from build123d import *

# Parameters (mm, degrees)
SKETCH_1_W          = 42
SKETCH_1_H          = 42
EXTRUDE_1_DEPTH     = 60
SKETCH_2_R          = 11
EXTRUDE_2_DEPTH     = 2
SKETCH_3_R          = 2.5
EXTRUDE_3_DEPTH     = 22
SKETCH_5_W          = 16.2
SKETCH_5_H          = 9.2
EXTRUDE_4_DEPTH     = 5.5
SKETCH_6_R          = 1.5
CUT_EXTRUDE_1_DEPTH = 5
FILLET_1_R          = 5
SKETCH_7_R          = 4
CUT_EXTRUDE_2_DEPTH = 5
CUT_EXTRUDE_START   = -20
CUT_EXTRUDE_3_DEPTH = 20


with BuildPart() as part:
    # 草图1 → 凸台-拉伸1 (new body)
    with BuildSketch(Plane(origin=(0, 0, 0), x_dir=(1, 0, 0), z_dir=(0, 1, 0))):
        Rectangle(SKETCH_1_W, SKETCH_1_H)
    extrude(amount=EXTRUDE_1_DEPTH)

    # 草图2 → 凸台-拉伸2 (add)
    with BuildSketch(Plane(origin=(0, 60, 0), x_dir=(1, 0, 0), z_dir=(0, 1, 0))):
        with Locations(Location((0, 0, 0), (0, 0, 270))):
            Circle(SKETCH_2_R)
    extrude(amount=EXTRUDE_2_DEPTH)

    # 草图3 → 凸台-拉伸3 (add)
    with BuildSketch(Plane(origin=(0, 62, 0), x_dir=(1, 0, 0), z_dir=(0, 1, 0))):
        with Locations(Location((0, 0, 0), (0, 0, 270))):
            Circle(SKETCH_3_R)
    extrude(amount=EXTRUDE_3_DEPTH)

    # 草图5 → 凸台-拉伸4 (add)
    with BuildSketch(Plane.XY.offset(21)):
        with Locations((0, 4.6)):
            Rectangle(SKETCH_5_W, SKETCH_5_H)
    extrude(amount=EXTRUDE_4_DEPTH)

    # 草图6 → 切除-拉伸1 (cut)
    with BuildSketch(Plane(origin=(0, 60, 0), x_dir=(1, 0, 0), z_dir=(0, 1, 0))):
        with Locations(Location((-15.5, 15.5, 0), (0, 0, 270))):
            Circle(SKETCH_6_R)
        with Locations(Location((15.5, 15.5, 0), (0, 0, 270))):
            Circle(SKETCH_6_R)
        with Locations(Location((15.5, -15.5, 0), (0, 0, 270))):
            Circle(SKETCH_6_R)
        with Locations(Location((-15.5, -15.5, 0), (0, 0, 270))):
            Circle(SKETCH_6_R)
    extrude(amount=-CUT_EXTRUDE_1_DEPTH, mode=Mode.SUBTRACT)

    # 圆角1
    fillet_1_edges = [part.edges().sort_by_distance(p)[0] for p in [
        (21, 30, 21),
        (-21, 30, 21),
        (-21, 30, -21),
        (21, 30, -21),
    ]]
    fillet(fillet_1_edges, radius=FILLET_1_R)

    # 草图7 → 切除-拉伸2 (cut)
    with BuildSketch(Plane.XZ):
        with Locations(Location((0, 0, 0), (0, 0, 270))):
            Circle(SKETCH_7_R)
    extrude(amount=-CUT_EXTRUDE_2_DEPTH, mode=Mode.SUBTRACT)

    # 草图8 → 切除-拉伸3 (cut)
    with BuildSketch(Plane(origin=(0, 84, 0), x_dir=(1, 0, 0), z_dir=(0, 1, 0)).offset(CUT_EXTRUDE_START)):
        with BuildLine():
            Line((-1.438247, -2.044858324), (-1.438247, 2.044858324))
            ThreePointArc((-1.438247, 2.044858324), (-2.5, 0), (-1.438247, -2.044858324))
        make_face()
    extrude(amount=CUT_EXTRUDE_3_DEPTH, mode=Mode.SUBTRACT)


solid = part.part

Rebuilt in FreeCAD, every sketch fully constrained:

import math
import FreeCAD as App
import Part
import Sketcher
Q = App.Units.Quantity


def edges_at(feature, points):
    """Names of the edges that pass closest to the given points."""
    edges = feature.Shape.Edges
    near = lambda p: min(range(len(edges)), key=lambda i: edges[i].distToShape(Part.Vertex(*p))[0])
    return sorted({f"Edge{near(p) + 1}" for p in points})

doc = App.newDocument("Part")
params = doc.addObject("Spreadsheet::Sheet", "Params")
for row, (alias, value) in enumerate([
    ("sketch1_width", "42 mm"),
    ("pad1_length", "60 mm"),
    ("sketch2_diameter", "22 mm"),
    ("pad2_length", "2 mm"),
    ("sketch3_diameter", "5 mm"),
    ("pad3_length", "22 mm"),
    ("sketch4_width", "16.2 mm"),
    ("sketch4_height", "9.2 mm"),
    ("pad4_length", "5.5 mm"),
    ("sketch5_diameter", "3 mm"),
    ("pocket1_length", "5 mm"),
    ("fillet_radius", "5 mm"),
    ("sketch6_diameter", "8 mm"),
    ("pocket2_length", "5 mm"),
    ("sketch7_radius", "2.5 mm"),
    ("pocket3_length", "20 mm"),
], start=1):
    params.set(f"A{row}", alias)
    params.set(f"B{row}", "=" + value)
    params.setAlias(f"B{row}", alias)

body = doc.addObject("PartDesign::Body", "Body")

sketch1 = doc.addObject("Sketcher::SketchObject", "Sketch")
body.addObject(sketch1)
sketch1.AttachmentSupport = (doc.XZ_Plane, [""])
sketch1.MapMode = "FlatFace"
sketch1.addGeometry([
    Part.LineSegment(App.Vector(-21, -21, 0), App.Vector(-21, 21, 0)),
    Part.LineSegment(App.Vector(-21, 21, 0), App.Vector(21, 21, 0)),
    Part.LineSegment(App.Vector(21, 21, 0), App.Vector(21, -21, 0)),
    Part.LineSegment(App.Vector(21, -21, 0), App.Vector(-21, -21, 0)),
], False)
sketch1.addConstraint([
    Sketcher.Constraint("Coincident", 0, 2, 1, 1),
    Sketcher.Constraint("Coincident", 1, 2, 2, 1),
    Sketcher.Constraint("Coincident", 2, 2, 3, 1),
    Sketcher.Constraint("Coincident", 3, 2, 0, 1),
    Sketcher.Constraint("Vertical", 0),
    Sketcher.Constraint("Horizontal", 1),
    Sketcher.Constraint("Vertical", 2),
    Sketcher.Constraint("Horizontal", 3),
    Sketcher.Constraint("Symmetric", 0, 2, 2, 2, -1, 1),
    Sketcher.Constraint("Equal", 3, 0),
    Sketcher.Constraint("DistanceX", 1, 1, 1, 2, Q("42 mm")),
])
sketch1.setExpression("Constraints[10]", "Params.sketch1_width")
pad1 = doc.addObject("PartDesign::Pad", "Pad")
body.addObject(pad1)
pad1.Profile = sketch1
pad1.setExpression("Length", "Params.pad1_length")
pad1.Reversed = True

sketch2 = doc.addObject("Sketcher::SketchObject", "Sketch001")
body.addObject(sketch2)
sketch2.AttachmentSupport = (doc.XZ_Plane, [""])
sketch2.MapMode = "FlatFace"
sketch2.AttachmentOffset = App.Placement(App.Vector(0, 0, -60), App.Rotation())
sketch2.addGeometry(Part.Circle(App.Vector(0, 0, 0), App.Vector(0, 0, 1), 11), False)
sketch2.addConstraint([
    Sketcher.Constraint("Coincident", 0, 3, -1, 1),
    Sketcher.Constraint("Diameter", 0, Q("22 mm")),
])
sketch2.setExpression("Constraints[1]", "Params.sketch2_diameter")
pad2 = doc.addObject("PartDesign::Pad", "Pad001")
body.addObject(pad2)
pad2.Profile = sketch2
pad2.setExpression("Length", "Params.pad2_length")
pad2.Reversed = True

sketch3 = doc.addObject("Sketcher::SketchObject", "Sketch002")
body.addObject(sketch3)
sketch3.AttachmentSupport = (doc.XZ_Plane, [""])
sketch3.MapMode = "FlatFace"
sketch3.AttachmentOffset = App.Placement(App.Vector(0, 0, -62), App.Rotation())
sketch3.addGeometry(Part.Circle(App.Vector(0, 0, 0), App.Vector(0, 0, 1), 2.5), False)
sketch3.addConstraint([
    Sketcher.Constraint("Coincident", 0, 3, -1, 1),
    Sketcher.Constraint("Diameter", 0, Q("5 mm")),
])
sketch3.setExpression("Constraints[1]", "Params.sketch3_diameter")
pad3 = doc.addObject("PartDesign::Pad", "Pad002")
body.addObject(pad3)
pad3.Profile = sketch3
pad3.setExpression("Length", "Params.pad3_length")
pad3.Reversed = True

sketch4 = doc.addObject("Sketcher::SketchObject", "Sketch003")
body.addObject(sketch4)
sketch4.AttachmentSupport = (doc.XY_Plane, [""])
sketch4.MapMode = "FlatFace"
sketch4.AttachmentOffset = App.Placement(App.Vector(0, 0, 21), App.Rotation())
sketch4.addGeometry([
    Part.LineSegment(App.Vector(-8, 9, 0), App.Vector(-8, 0, 0)),
    Part.LineSegment(App.Vector(-8, 0, 0), App.Vector(8, 0, 0)),
    Part.LineSegment(App.Vector(8, 0, 0), App.Vector(8, 9, 0)),
    Part.LineSegment(App.Vector(8, 9, 0), App.Vector(-8, 9, 0)),
], False)
sketch4.addConstraint([
    Sketcher.Constraint("Coincident", 0, 2, 1, 1),
    Sketcher.Constraint("Coincident", 1, 2, 2, 1),
    Sketcher.Constraint("Coincident", 2, 2, 3, 1),
    Sketcher.Constraint("Coincident", 3, 2, 0, 1),
    Sketcher.Constraint("Vertical", 0),
    Sketcher.Constraint("Horizontal", 1),
    Sketcher.Constraint("Vertical", 2),
    Sketcher.Constraint("Horizontal", 3),
    Sketcher.Constraint("Symmetric", 0, 2, 1, 2, -1, 1),
    Sketcher.Constraint("DistanceX", 1, 1, 1, 2, Q("16.2 mm")),
    Sketcher.Constraint("DistanceY", 0, 2, 0, 1, Q("9.2 mm")),
])
sketch4.setExpression("Constraints[9]", "Params.sketch4_width")
sketch4.setExpression("Constraints[10]", "Params.sketch4_height")
pad4 = doc.addObject("PartDesign::Pad", "Pad003")
body.addObject(pad4)
pad4.Profile = sketch4
pad4.setExpression("Length", "Params.pad4_length")

sketch5 = doc.addObject("Sketcher::SketchObject", "Sketch004")
body.addObject(sketch5)
sketch5.AttachmentSupport = (doc.XZ_Plane, [""])
sketch5.MapMode = "FlatFace"
sketch5.AttachmentOffset = App.Placement(App.Vector(0, 0, -60), App.Rotation())
sketch5.addGeometry([
    Part.Circle(App.Vector(-15.5, -15.5, 0), App.Vector(0, 0, 1), 1.5),
    Part.Circle(App.Vector(15.5, -15.5, 0), App.Vector(0, 0, 1), 1.5),
    Part.Circle(App.Vector(15.5, 15.5, 0), App.Vector(0, 0, 1), 1.5),
    Part.Circle(App.Vector(-15.5, 15.5, 0), App.Vector(0, 0, 1), 1.5),
], False)
sketch5.addConstraint([
    Sketcher.Constraint("Equal", 0, 1),
    Sketcher.Constraint("Equal", 1, 2),
    Sketcher.Constraint("Equal", 2, 3),
    Sketcher.Constraint("Symmetric", 0, 3, 2, 3, -1, 1),
    Sketcher.Constraint("Symmetric", 1, 3, 3, 3, -1, 1),
    Sketcher.Constraint("Symmetric", 0, 3, 1, 3, -2),
    Sketcher.Constraint("Diameter", 0, Q("3 mm")),
    Sketcher.Constraint("DistanceX", 0, 3, 1, 3, Q("31 mm")),
    Sketcher.Constraint("DistanceY", 1, 3, 2, 3, Q("31 mm")),
])
sketch5.setExpression("Constraints[6]", "Params.sketch5_diameter")
pocket1 = doc.addObject("PartDesign::Pocket", "Pocket")
body.addObject(pocket1)
pocket1.Profile = sketch5
pocket1.setExpression("Length", "Params.pocket1_length")
pocket1.Reversed = True
doc.recompute()

fillet = doc.addObject("PartDesign::Fillet", "Fillet")
body.addObject(fillet)
fillet.Base = (pocket1, edges_at(pocket1, [
    (21, 30, 21),
    (-21, 30, 21),
    (-21, 30, -21),
    (21, 30, -21),
]))
fillet.setExpression("Radius", "Params.fillet_radius")

sketch6 = doc.addObject("Sketcher::SketchObject", "Sketch005")
body.addObject(sketch6)
sketch6.AttachmentSupport = (doc.XZ_Plane, [""])
sketch6.MapMode = "FlatFace"
sketch6.addGeometry(Part.Circle(App.Vector(0, 0, 0), App.Vector(0, 0, 1), 4), False)
sketch6.addConstraint([
    Sketcher.Constraint("Coincident", 0, 3, -1, 1),
    Sketcher.Constraint("Diameter", 0, Q("8 mm")),
])
sketch6.setExpression("Constraints[1]", "Params.sketch6_diameter")
pocket2 = doc.addObject("PartDesign::Pocket", "Pocket001")
body.addObject(pocket2)
pocket2.Profile = sketch6
pocket2.setExpression("Length", "Params.pocket2_length")

sketch7 = doc.addObject("Sketcher::SketchObject", "Sketch006")
body.addObject(sketch7)
sketch7.AttachmentSupport = (doc.XZ_Plane, [""])
sketch7.MapMode = "FlatFace"
sketch7.AttachmentOffset = App.Placement(App.Vector(0, 0, -64), App.Rotation())
sketch7.addGeometry([
    Part.LineSegment(App.Vector(-1.4, 2, 0), App.Vector(-1.4, -2, 0)),
    Part.ArcOfCircle(Part.Circle(App.Vector(0, 0, 0), App.Vector(0, 0, 1), 2.5), math.radians(125), math.radians(235)),
], False)
sketch7.addConstraint([
    Sketcher.Constraint("Coincident", 0, 1, 1, 1),
    Sketcher.Constraint("Coincident", 1, 2, 0, 2),
    Sketcher.Constraint("Vertical", 0),
    Sketcher.Constraint("Coincident", 1, 3, -1, 1),
    Sketcher.Constraint("Radius", 1, Q("2.5 mm")),
    Sketcher.Constraint("DistanceY", 0, 2, 0, 1, Q("4.089717 mm")),
])
sketch7.setExpression("Constraints[4]", "Params.sketch7_radius")
pocket3 = doc.addObject("PartDesign::Pocket", "Pocket002")
body.addObject(pocket3)
pocket3.Profile = sketch7
pocket3.setExpression("Length", "Params.pocket3_length")

doc.recompute()
